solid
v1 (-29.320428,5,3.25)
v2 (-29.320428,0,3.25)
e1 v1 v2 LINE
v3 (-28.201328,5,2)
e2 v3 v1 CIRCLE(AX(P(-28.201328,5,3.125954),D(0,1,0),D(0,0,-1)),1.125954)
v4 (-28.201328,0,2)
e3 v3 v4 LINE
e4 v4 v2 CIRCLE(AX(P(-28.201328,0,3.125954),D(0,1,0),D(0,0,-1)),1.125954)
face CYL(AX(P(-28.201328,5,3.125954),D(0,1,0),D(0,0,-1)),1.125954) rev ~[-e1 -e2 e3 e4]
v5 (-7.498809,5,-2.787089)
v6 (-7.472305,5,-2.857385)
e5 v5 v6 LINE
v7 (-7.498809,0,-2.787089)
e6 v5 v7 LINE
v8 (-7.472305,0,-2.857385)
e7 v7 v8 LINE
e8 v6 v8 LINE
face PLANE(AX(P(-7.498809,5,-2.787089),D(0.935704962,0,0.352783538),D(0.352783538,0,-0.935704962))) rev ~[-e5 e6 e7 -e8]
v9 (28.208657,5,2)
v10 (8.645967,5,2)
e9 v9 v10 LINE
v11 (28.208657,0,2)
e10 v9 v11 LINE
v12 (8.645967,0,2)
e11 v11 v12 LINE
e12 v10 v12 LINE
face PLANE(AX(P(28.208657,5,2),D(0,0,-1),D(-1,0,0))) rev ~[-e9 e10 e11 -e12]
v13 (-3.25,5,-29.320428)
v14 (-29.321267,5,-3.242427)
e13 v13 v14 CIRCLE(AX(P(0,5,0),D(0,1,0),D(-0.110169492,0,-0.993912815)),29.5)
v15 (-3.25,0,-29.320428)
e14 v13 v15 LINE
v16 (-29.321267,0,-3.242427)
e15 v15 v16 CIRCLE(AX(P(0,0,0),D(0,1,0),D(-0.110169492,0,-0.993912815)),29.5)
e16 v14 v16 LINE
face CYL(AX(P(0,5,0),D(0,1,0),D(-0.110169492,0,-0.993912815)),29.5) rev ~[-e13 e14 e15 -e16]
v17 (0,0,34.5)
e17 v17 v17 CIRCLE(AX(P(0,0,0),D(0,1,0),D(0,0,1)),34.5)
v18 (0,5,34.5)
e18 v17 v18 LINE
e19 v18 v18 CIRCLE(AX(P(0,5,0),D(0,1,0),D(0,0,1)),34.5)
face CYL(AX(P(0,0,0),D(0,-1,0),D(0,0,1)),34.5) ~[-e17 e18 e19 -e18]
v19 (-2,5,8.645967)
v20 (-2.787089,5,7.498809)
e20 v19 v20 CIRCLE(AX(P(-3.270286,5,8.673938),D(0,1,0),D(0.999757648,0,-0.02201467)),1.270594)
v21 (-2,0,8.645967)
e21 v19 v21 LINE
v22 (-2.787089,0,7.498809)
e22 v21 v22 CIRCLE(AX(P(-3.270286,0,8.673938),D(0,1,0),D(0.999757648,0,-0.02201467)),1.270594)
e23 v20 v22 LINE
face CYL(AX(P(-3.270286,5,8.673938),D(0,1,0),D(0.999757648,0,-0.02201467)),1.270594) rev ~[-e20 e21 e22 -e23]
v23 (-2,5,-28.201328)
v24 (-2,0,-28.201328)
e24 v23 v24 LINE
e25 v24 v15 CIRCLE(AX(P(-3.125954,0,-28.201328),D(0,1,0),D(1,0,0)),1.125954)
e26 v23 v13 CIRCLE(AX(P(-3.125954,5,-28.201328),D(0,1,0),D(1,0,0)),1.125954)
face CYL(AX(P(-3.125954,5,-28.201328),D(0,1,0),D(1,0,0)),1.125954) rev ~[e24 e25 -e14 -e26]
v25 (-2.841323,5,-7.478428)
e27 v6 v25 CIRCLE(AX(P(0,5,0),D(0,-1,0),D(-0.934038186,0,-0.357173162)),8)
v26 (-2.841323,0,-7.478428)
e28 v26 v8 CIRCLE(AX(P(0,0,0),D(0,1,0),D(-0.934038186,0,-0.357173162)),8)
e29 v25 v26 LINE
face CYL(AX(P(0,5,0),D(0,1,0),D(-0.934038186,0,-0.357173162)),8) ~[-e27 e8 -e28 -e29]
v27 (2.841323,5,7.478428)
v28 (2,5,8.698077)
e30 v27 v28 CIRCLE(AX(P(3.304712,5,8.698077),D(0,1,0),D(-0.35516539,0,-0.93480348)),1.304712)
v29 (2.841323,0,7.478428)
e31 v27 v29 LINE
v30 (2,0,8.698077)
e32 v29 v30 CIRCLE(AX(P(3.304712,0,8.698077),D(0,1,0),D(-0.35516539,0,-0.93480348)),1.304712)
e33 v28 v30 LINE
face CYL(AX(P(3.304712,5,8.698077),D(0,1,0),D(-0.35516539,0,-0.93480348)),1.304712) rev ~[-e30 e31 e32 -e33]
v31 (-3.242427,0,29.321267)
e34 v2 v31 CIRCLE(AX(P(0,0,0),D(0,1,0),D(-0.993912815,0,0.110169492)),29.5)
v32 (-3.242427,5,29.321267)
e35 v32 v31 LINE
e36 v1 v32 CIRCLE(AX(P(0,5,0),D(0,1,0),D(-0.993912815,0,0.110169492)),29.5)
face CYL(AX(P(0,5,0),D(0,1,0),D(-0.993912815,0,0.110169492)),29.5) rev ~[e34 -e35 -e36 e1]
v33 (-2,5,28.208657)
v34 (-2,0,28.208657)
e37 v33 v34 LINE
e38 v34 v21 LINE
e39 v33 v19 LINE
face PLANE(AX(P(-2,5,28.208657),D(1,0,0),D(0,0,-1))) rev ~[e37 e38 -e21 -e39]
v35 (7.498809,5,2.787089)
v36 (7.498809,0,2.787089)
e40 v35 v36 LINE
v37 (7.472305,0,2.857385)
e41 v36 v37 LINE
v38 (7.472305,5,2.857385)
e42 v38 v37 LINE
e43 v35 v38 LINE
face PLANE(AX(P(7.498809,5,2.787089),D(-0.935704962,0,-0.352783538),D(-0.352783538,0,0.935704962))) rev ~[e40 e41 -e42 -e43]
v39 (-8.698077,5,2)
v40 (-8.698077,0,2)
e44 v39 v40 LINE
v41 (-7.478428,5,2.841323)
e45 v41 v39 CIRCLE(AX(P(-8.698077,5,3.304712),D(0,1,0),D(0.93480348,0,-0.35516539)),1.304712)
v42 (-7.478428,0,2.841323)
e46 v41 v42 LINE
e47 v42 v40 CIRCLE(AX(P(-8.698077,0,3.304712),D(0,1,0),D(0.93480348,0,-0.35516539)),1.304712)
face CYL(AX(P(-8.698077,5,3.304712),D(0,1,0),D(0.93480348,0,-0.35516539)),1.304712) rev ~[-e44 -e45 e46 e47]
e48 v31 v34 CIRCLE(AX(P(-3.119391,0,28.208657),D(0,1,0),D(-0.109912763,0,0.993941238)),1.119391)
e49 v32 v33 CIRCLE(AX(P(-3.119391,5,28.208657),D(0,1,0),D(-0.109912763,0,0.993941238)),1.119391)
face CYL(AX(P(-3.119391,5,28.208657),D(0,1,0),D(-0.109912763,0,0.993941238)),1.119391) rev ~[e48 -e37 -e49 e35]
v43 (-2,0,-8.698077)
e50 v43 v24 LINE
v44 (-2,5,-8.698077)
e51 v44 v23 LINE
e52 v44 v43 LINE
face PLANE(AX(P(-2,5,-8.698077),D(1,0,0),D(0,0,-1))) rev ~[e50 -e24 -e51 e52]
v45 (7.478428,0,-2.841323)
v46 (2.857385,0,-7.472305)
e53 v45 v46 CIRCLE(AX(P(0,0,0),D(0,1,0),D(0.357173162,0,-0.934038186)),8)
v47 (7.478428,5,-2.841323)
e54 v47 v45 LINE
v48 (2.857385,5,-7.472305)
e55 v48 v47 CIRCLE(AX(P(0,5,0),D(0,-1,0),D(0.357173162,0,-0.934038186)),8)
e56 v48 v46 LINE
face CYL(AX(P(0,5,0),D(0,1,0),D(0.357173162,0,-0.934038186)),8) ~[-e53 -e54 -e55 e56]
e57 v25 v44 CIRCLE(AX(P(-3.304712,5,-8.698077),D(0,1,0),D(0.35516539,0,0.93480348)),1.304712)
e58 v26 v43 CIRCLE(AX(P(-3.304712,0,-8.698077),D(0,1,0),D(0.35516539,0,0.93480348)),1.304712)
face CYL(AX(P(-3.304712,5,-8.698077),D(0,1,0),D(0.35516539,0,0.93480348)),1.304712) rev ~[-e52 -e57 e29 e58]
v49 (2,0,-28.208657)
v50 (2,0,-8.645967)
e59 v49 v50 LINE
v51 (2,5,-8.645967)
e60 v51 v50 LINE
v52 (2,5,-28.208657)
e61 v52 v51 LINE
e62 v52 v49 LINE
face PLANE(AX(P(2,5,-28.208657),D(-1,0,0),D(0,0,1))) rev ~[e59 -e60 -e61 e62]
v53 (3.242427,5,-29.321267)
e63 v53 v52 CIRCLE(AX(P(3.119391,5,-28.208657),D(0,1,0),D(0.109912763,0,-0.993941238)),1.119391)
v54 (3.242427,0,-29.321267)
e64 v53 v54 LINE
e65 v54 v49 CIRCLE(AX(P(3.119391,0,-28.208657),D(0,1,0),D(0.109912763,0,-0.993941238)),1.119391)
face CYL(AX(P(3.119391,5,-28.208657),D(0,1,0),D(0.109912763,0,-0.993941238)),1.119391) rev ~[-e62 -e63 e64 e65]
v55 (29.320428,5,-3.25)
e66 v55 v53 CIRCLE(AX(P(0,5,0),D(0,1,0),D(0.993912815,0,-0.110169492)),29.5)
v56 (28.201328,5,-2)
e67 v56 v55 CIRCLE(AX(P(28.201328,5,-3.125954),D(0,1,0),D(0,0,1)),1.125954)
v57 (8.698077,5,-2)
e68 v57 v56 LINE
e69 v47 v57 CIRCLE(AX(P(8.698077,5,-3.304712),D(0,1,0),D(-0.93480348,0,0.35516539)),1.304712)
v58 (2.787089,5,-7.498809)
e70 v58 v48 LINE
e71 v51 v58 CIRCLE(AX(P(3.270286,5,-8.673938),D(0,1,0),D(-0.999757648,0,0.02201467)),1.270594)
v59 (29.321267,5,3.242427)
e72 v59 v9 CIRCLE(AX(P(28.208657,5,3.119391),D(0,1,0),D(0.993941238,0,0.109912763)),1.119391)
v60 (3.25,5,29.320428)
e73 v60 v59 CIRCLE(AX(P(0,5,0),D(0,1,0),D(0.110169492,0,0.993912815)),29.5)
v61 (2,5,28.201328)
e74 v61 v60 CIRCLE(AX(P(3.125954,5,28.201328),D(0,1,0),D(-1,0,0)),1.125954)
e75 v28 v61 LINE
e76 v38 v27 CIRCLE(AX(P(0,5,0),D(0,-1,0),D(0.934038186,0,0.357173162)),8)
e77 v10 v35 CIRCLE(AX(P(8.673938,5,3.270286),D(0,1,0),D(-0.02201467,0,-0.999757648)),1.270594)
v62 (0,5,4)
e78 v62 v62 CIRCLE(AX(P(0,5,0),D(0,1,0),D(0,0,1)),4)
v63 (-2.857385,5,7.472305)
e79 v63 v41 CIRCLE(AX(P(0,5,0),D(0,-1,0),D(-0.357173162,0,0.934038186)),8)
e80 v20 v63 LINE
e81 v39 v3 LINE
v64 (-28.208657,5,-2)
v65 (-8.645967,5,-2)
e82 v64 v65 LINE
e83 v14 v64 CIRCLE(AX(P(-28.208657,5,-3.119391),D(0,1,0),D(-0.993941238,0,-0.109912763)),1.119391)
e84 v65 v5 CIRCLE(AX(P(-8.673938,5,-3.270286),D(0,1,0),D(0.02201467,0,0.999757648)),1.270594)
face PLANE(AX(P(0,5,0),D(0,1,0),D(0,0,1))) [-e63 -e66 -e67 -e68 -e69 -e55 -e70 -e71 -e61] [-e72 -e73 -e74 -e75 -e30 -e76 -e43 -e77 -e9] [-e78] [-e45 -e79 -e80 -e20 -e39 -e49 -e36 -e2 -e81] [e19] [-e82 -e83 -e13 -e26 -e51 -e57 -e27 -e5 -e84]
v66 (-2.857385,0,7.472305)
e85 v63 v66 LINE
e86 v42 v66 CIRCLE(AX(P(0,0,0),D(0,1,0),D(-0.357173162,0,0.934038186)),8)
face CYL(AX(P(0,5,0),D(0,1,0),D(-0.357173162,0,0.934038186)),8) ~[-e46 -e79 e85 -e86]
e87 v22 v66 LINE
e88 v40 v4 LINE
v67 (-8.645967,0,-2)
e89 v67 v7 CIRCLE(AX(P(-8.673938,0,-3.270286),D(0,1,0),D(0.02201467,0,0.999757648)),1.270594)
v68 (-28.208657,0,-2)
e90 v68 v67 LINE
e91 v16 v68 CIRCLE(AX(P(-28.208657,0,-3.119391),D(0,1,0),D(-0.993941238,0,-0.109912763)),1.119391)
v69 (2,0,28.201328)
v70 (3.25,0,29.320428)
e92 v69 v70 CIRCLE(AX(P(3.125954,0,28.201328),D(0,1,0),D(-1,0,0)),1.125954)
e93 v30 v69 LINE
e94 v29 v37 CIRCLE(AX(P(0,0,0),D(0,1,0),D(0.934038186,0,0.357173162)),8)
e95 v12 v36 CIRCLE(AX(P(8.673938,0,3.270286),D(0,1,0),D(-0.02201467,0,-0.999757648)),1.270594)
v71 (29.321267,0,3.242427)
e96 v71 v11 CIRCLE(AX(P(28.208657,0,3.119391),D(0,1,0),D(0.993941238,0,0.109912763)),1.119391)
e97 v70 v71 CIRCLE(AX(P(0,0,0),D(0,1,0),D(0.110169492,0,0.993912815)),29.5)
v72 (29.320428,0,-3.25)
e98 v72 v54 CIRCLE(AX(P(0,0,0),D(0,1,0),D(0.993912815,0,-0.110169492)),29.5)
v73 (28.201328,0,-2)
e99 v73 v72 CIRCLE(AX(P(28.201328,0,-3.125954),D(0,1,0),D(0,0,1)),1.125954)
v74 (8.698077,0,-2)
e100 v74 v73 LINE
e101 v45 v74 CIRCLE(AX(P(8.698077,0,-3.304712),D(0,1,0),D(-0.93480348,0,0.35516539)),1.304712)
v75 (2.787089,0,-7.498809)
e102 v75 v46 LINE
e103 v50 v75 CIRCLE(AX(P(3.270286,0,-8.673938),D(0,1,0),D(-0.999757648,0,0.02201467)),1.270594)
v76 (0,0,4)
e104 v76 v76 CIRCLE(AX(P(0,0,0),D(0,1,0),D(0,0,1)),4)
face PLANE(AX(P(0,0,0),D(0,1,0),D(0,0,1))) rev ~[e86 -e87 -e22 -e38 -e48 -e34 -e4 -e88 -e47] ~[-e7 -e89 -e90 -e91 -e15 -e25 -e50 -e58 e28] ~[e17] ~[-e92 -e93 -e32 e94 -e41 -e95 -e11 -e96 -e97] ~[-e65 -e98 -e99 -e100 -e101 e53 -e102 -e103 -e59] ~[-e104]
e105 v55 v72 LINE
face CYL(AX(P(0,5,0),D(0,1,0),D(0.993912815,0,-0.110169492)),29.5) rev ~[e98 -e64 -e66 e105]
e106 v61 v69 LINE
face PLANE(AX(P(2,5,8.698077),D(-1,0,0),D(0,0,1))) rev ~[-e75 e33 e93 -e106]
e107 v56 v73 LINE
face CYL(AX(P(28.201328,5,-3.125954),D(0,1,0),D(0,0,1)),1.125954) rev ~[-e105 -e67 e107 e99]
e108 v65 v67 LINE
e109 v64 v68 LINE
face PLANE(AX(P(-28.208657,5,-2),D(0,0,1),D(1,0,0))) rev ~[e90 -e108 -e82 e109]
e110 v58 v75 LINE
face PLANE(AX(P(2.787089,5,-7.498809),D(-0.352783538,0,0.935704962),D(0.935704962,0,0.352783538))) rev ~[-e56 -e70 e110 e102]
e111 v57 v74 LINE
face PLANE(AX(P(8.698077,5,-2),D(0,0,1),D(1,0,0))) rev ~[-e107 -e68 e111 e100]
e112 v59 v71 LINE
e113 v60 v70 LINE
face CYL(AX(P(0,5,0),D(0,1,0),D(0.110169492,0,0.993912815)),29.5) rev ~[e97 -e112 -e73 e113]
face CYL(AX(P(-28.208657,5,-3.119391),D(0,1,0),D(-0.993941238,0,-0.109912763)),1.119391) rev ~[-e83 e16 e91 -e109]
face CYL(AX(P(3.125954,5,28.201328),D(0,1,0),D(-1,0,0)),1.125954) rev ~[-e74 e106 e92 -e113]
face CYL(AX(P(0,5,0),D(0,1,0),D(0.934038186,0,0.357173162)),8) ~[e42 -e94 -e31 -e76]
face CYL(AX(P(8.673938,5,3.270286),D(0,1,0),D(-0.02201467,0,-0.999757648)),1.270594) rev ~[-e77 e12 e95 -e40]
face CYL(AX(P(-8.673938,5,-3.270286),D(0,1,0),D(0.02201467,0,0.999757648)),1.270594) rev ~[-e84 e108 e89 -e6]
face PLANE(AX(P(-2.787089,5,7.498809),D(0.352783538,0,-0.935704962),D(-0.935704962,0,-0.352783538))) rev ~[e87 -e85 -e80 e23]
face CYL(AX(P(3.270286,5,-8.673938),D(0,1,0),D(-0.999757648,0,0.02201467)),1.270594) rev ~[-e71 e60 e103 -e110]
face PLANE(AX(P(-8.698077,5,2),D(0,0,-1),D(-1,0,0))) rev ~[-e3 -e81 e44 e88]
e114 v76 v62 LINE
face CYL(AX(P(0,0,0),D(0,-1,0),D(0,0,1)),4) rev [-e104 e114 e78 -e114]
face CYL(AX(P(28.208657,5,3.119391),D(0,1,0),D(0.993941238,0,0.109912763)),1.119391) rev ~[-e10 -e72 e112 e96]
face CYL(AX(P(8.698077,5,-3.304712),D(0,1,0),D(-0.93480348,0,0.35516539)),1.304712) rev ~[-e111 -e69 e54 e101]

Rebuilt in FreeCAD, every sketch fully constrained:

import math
import FreeCAD as App
import Part
import Sketcher
from FreeCAD import Vector

doc = App.newDocument("Part")
body = doc.addObject("PartDesign::Body", "Body")

# Sketch on XZ plane
sketch1 = body.newObject("Sketcher::SketchObject", "Sketch")
sketch1.AttachmentSupport = (doc.getObject("XZ_Plane"), [""])
sketch1.MapMode = "FlatFace"
sketch1.addGeometry([
    Part.Circle(Vector(0, 0, 0), Vector(0, 0, 1), 34.5),
    Part.Circle(Vector(0, 0, 0), Vector(0, 0, 1), 4),
], False)
sketch1.addConstraint([
    Sketcher.Constraint("Coincident", 0, 3, -1, 1),
    Sketcher.Constraint("Coincident", 1, 3, -1, 1),
    Sketcher.Constraint("Diameter", 0, 69.0),
    Sketcher.Constraint("Diameter", 1, 8.0),
])
pad1 = body.newObject("PartDesign::Pad", "Pad")
pad1.Profile = sketch1
pad1.Length = 5
pad1.Reversed = True

# Sketch on XZ plane
sketch2 = body.newObject("Sketcher::SketchObject", "Sketch001")
sketch2.AttachmentSupport = (doc.getObject("XZ_Plane"), [""])
sketch2.MapMode = "FlatFace"
sketch2.AttachmentOffset = App.Placement(Vector(0, 0, -5), App.Rotation())
sketch2.addGeometry([
    Part.LineSegment(Vector(-8.7, 2, 0), Vector(-28.2, 2, 0)),  # 0
    Part.ArcOfCircle(Part.Circle(Vector(-28.2, 3.13, 0), Vector(0, 0, 1), 1.13), math.radians(174), math.radians(270)),  # 1
    Part.ArcOfCircle(Part.Circle(Vector(0, 0, 0), Vector(0, 0, 1), 29.5), math.radians(96), math.radians(174)),  # 2
    Part.ArcOfCircle(Part.Circle(Vector(-3.12, 28.21, 0), Vector(0, 0, 1), 1.12), math.radians(0), math.radians(96)),  # 3
    Part.LineSegment(Vector(-2, 28.21, 0), Vector(-2, 8.65, 0)),  # 4
    Part.ArcOfCircle(Part.Circle(Vector(-3.27, 8.67, 0), Vector(0, 0, 1), 1.27), math.radians(-68), math.radians(-1)),  # 5
    Part.LineSegment(Vector(-2.79, 7.5, 0), Vector(-2.86, 7.47, 0)),  # 6
    Part.ArcOfCircle(Part.Circle(Vector(0, 0, 0), Vector(0, 0, 1), 8), math.radians(111), math.radians(159)),  # 7
    Part.ArcOfCircle(Part.Circle(Vector(-8.7, 3.3, 0), Vector(0, 0, 1), 1.3), math.radians(-90), math.radians(-21)),  # 8
], False)
sketch2.addConstraint([
    Sketcher.Constraint("Tangent", 0, 2, 1, 2),
    Sketcher.Constraint("Tangent", 1, 1, 2, 2),
    Sketcher.Constraint("Tangent", 2, 1, 3, 2),
    Sketcher.Constraint("Tangent", 3, 1, 4, 1),
    Sketcher.Constraint("Coincident", 4, 2, 5, 2),
    Sketcher.Constraint("Coincident", 5, 1, 6, 1),
    Sketcher.Constraint("Coincident", 6, 2, 7, 1),
    Sketcher.Constraint("Tangent", 7, 2, 8, 2),
    Sketcher.Constraint("Tangent", 8, 1, 0, 1),
    Sketcher.Constraint("Horizontal", 0),
    Sketcher.Constraint("Vertical", 4),
    Sketcher.Constraint("Coincident", 2, 3, -1, 1),
    Sketcher.Constraint("Coincident", 7, 3, -1, 1),
    Sketcher.Constraint("Radius", 7, 8.0),
    Sketcher.Constraint("Radius", 2, 29.5),
    Sketcher.Constraint("DistanceY", -1, 1, 0, 2, 2.0),
    Sketcher.Constraint("DistanceX", 3, 1, -1, 1, 2.0),
    Sketcher.Constraint("DistanceY", -1, 1, 1, 1, 3.25),
    Sketcher.Constraint("Radius", 3, 1.119391),
    Sketcher.Constraint("Radius", 8, 1.304712),
    Sketcher.Constraint("Radius", 5, 1.270594),
    Sketcher.Constraint("DistanceY", 4, 2, 4, 1, 19.562691),
    Sketcher.Constraint("DistanceX", 5, 3, 6, 2, 0.412901),
    Sketcher.Constraint("DistanceY", -1, 1, 5, 3, 8.673938),
    Sketcher.Constraint("DistanceX", 5, 1, -1, 1, 2.787089),
])
pocket1 = body.newObject("PartDesign::Pocket", "Pocket")
pocket1.Profile = sketch2
pocket1.Type = "ThroughAll"
pocket1.Reversed = True
doc.recompute()

polarpattern = body.newObject("PartDesign::PolarPattern", "PolarPattern")
polarpattern.Originals = [pocket1]
polarpattern.Axis = (doc.getObject("Y_Axis"), [""])
polarpattern.Angle = 360
polarpattern.Occurrences = 4
body.Tip = polarpattern

doc.recompute()
